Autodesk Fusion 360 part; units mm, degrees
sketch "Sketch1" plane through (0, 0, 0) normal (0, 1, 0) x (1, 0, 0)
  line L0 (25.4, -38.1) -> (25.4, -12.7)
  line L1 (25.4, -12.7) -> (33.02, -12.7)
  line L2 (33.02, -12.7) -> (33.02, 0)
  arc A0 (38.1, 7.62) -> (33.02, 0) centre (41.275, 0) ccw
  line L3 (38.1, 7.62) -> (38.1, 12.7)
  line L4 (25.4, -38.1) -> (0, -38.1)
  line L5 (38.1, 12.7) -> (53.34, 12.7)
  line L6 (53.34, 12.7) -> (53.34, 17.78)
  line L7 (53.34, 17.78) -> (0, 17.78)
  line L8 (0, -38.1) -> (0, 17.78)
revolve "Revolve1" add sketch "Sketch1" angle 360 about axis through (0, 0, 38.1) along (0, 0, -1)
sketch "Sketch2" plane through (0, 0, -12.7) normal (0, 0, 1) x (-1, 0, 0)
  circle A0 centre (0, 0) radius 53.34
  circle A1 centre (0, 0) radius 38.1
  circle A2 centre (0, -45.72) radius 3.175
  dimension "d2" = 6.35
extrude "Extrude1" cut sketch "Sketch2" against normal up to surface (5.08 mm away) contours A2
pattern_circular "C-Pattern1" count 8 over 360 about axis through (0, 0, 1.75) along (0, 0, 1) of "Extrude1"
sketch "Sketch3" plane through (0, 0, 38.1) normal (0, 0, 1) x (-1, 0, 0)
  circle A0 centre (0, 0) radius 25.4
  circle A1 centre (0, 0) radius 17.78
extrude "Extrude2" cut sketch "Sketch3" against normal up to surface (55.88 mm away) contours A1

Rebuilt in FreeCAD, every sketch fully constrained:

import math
import FreeCAD as App
import Part
import Sketcher
from FreeCAD import Vector
Q = App.Units.Quantity

doc = App.newDocument("Part")
params = doc.addObject("Spreadsheet::Sheet", "Params")
for row, (alias, value) in enumerate([
    ("sketch1_width", "1 in"),
    ("sketch1_width2", "0.3 in"),
    ("sketch1_width3", "0.6 in"),
    ("sketch1_width4", "2.1 in"),
    ("sketch1_height", "0.5 in"),
    ("revolution_angle", "360 deg"),
    ("sketch2_diameter", "0.25 in"),
    ("pocket1_length", "0.2 in"),
    ("sketch3_diameter", "1.4 in"),
    ("pocket2_length", "2.2 in"),
], start=1):
    params.set(f"A{row}", alias)
    params.set(f"B{row}", "=" + value)
    params.setAlias(f"B{row}", alias)

body = doc.addObject("PartDesign::Body", "Body")

sketch1 = body.newObject("Sketcher::SketchObject", "Sketch")
sketch1.AttachmentSupport = (doc.getObject("XZ_Plane"), [""])
sketch1.MapMode = "FlatFace"
sketch1.addGeometry([
    Part.LineSegment(Vector(0, 38.1, 0), Vector(25.4, 38.1, 0)),
    Part.LineSegment(Vector(25.4, 38.1, 0), Vector(25.4, 12.7, 0)),
    Part.LineSegment(Vector(25.4, 12.7, 0), Vector(33.02, 12.7, 0)),
    Part.LineSegment(Vector(33.02, 12.7, 0), Vector(33.02, 0, 0)),
    Part.ArcOfCircle(Part.Circle(Vector(41.275, 0, 0), Vector(0, 0, 1), 8.255), math.radians(180), math.radians(247.380135)),
    Part.LineSegment(Vector(38.1, -7.62, 0), Vector(38.1, -12.7, 0)),
    Part.LineSegment(Vector(38.1, -12.7, 0), Vector(53.34, -12.7, 0)),
    Part.LineSegment(Vector(53.34, -12.7, 0), Vector(53.34, -17.78, 0)),
    Part.LineSegment(Vector(53.34, -17.78, 0), Vector(0, -17.78, 0)),
    Part.LineSegment(Vector(0, -17.78, 0), Vector(0, 38.1, 0)),
], False)
sketch1.addConstraint([
    Sketcher.Constraint("Coincident", 0, 2, 1, 1),
    Sketcher.Constraint("Coincident", 1, 2, 2, 1),
    Sketcher.Constraint("Coincident", 2, 2, 3, 1),
    Sketcher.Constraint("Tangent", 3, 2, 4, 1),
    Sketcher.Constraint("Coincident", 4, 2, 5, 1),
    Sketcher.Constraint("Coincident", 5, 2, 6, 1),
    Sketcher.Constraint("Coincident", 6, 2, 7, 1),
    Sketcher.Constraint("Coincident", 7, 2, 8, 1),
    Sketcher.Constraint("Coincident", 8, 2, 9, 1),
    Sketcher.Constraint("Coincident", 9, 2, 0, 1),
    Sketcher.Constraint("Horizontal", 0),
    Sketcher.Constraint("Vertical", 1),
    Sketcher.Constraint("Horizontal", 2),
    Sketcher.Constraint("Vertical", 3),
    Sketcher.Constraint("Vertical", 5),
    Sketcher.Constraint("Horizontal", 6),
    Sketcher.Constraint("Vertical", 7),
    Sketcher.Constraint("Horizontal", 8),
    Sketcher.Constraint("Vertical", 9),
    Sketcher.Constraint("PointOnObject", 4, 3, -1),
    Sketcher.Constraint("PointOnObject", 8, 2, -2),
    Sketcher.Constraint("Equal", 0, 1),
    Sketcher.Constraint("Equal", 5, 7),
    Sketcher.Constraint("DistanceX", 0, 1, 0, 2, Q("1 in")),
    Sketcher.Constraint("DistanceX", 2, 1, 2, 2, Q("0.3 in")),
    Sketcher.Constraint("DistanceX", 6, 1, 6, 2, Q("0.6 in")),
    Sketcher.Constraint("DistanceX", 8, 2, 8, 1, Q("2.1 in")),
    Sketcher.Constraint("DistanceY", 3, 2, 3, 1, Q("0.5 in")),
    Sketcher.Constraint("DistanceY", 5, 2, 5, 1, Q("0.2 in")),
    Sketcher.Constraint("DistanceY", 9, 1, 9, 2, Q("2.2 in")),
])
sketch1.setExpression("Constraints[23]", "Params.sketch1_width")
sketch1.setExpression("Constraints[24]", "Params.sketch1_width2")
sketch1.setExpression("Constraints[25]", "Params.sketch1_width3")
sketch1.setExpression("Constraints[26]", "Params.sketch1_width4")
sketch1.setExpression("Constraints[27]", "Params.sketch1_height")
revolution = body.newObject("PartDesign::Revolution", "Revolution")
revolution.Profile = sketch1
revolution.ReferenceAxis = (sketch1, ["V_Axis"])
revolution.setExpression("Angle", "Params.revolution_angle")

sketch2 = body.newObject("Sketcher::SketchObject", "Sketch001")
sketch2.AttachmentSupport = (doc.getObject("XY_Plane"), [""])
sketch2.MapMode = "FlatFace"
sketch2.AttachmentOffset = App.Placement(Vector(0, 0, -0.5 * 25.4), App.Rotation())
sketch2.addGeometry(Part.Circle(Vector(0, 45.72, 0), Vector(0, 0, 1), 3.175), False)
sketch2.addConstraint([
    Sketcher.Constraint("PointOnObject", 0, 3, -2),
    Sketcher.Constraint("Diameter", 0, Q("0.25 in")),
    Sketcher.Constraint("DistanceY", -1, 1, 0, 3, Q("1.8 in")),
])
sketch2.setExpression("Constraints[1]", "Params.sketch2_diameter")
pocket1 = body.newObject("PartDesign::Pocket", "Pocket")
pocket1.Profile = sketch2
pocket1.setExpression("Length", "Params.pocket1_length")
doc.recompute()

polarpattern = body.newObject("PartDesign::PolarPattern", "PolarPattern")
polarpattern.Originals = [pocket1]
polarpattern.Axis = (doc.getObject("Z_Axis"), [""])
polarpattern.Angle = 360
polarpattern.Occurrences = 8
body.Tip = polarpattern

sketch3 = body.newObject("Sketcher::SketchObject", "Sketch002")
sketch3.AttachmentSupport = (doc.getObject("XY_Plane"), [""])
sketch3.MapMode = "FlatFace"
sketch3.AttachmentOffset = App.Placement(Vector(0, 0, 1.5 * 25.4), App.Rotation())
sketch3.addGeometry(Part.Circle(Vector(0, 0, 0), Vector(0, 0, 1), 17.78), False)
sketch3.addConstraint([
    Sketcher.Constraint("Coincident", 0, 3, -1, 1),
    Sketcher.Constraint("Diameter", 0, Q("1.4 in")),
])
sketch3.setExpression("Constraints[1]", "Params.sketch3_diameter")
pocket2 = body.newObject("PartDesign::Pocket", "Pocket001")
pocket2.Profile = sketch3
pocket2.setExpression("Length", "Params.pocket2_length")

doc.recompute()
